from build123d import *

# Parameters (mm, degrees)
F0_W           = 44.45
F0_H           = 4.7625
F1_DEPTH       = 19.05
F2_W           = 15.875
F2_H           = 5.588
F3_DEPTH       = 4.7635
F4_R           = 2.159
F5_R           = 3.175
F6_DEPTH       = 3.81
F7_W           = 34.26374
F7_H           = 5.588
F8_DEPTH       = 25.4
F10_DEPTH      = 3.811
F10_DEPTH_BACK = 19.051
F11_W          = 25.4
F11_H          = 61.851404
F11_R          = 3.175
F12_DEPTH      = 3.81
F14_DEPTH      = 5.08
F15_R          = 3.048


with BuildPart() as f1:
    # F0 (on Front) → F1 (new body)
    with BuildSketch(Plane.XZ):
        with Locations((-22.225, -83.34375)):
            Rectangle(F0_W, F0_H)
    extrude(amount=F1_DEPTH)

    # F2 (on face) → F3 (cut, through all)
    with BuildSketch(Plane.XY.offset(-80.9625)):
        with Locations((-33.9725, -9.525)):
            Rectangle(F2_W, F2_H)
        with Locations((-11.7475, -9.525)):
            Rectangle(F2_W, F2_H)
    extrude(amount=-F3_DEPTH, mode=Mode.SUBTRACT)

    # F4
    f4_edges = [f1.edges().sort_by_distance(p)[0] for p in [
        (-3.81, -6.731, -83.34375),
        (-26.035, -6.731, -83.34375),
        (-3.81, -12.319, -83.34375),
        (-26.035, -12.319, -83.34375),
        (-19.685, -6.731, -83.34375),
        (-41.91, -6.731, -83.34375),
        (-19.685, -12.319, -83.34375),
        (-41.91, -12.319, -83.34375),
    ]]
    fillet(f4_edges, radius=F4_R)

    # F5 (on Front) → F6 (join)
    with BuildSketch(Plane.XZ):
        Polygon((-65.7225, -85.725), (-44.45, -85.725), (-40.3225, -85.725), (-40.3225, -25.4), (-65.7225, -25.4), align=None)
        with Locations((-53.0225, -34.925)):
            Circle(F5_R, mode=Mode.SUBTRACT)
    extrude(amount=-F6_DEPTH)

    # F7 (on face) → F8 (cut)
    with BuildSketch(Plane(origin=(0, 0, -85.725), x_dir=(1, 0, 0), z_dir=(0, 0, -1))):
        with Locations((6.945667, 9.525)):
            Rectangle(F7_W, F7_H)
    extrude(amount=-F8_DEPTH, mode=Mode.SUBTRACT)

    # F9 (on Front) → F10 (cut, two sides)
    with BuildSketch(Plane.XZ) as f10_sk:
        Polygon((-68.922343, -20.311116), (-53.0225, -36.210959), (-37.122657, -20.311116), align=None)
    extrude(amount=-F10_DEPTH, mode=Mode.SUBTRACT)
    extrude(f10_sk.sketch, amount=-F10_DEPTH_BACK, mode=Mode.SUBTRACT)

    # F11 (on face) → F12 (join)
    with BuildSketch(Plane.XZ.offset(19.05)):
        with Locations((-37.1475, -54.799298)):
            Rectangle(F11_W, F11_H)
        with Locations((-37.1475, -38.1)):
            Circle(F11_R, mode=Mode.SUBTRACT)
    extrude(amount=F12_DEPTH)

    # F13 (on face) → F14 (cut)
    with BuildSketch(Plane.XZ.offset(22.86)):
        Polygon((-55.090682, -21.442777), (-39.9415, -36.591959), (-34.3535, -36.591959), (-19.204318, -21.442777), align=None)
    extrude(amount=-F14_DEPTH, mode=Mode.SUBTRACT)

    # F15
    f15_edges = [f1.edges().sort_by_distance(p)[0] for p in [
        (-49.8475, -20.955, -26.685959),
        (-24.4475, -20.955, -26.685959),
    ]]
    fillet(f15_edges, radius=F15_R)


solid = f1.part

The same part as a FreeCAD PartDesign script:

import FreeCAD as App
import Part
import Sketcher
Q = App.Units.Quantity


def edges_at(feature, points):
    """Names of the edges that pass closest to the given points."""
    edges = feature.Shape.Edges
    near = lambda p: min(range(len(edges)), key=lambda i: edges[i].distToShape(Part.Vertex(*p))[0])
    return sorted({f"Edge{near(p) + 1}" for p in points})


def add_polygon(sketch, points):
    """Adds a closed chain of lines whose ends are joined by coincident constraints."""
    first, n = sketch.GeometryCount, len(points)
    for a, b in zip(points, points[1:] + points[:1]):
        sketch.addGeometry(Part.LineSegment(App.Vector(*a, 0), App.Vector(*b, 0)), False)
    for i in range(n):
        sketch.addConstraint(Sketcher.Constraint("Coincident", first + i, 2, first + (i + 1) % n, 1))

doc = App.newDocument("Part")
params = doc.addObject("Spreadsheet::Sheet", "Params")
for row, (alias, value) in enumerate([
    ("sketch1_width", "1.75 in"),
    ("sketch1_height", "0.1875 in"),
    ("pad1_length", "0.75 in"),
    ("sketch2_height", "0.22 in"),
    ("sketch2_width", "0.625 in"),
    ("fillet_radius", "0.085 in"),
    ("sketch3_diameter", "0.25 in"),
    ("sketch3_width", "1 in"),
    ("sketch3_height", "2.375 in"),
    ("pad2_length", "0.15 in"),
    ("sketch4_height", "0.22 in"),
    ("pocket2_length", "1 in"),
    ("pocket3_length", "3.811 mm"),
    ("pocket4_length", "19.051 mm"),
    ("sketch6_diameter", "0.25 in"),
    ("sketch6_width", "1 in"),
    ("pad3_length", "0.15 in"),
    ("sketch7_width", "0.22 in"),
    ("pocket5_length", "0.2 in"),
    ("fillet2_radius", "0.12 in"),
], start=1):
    params.set(f"A{row}", alias)
    params.set(f"B{row}", "=" + value)
    params.setAlias(f"B{row}", alias)

body = doc.addObject("PartDesign::Body", "Body")

sketch1 = body.newObject("Sketcher::SketchObject", "Sketch")
sketch1.AttachmentSupport = (doc.getObject("XZ_Plane"), [""])
sketch1.MapMode = "FlatFace"
add_polygon(sketch1, [(-44.45, -80.9625), (-44.45, -85.725), (0, -85.725), (0, -80.9625)])
sketch1.addConstraint([
    Sketcher.Constraint("Vertical", 0),
    Sketcher.Constraint("Horizontal", 1),
    Sketcher.Constraint("Vertical", 2),
    Sketcher.Constraint("Horizontal", 3),
    Sketcher.Constraint("PointOnObject", 1, 2, -2),
    Sketcher.Constraint("DistanceX", 1, 1, 1, 2, Q("1.75 in")),
    Sketcher.Constraint("DistanceY", 0, 2, 0, 1, Q("0.1875 in")),
    Sketcher.Constraint("DistanceY", 0, 2, -1, 1, Q("3.375 in")),
])
sketch1.setExpression("Constraints[9]", "Params.sketch1_width")
sketch1.setExpression("Constraints[10]", "Params.sketch1_height")
pad1 = body.newObject("PartDesign::Pad", "Pad")
pad1.Profile = sketch1
pad1.setExpression("Length", "Params.pad1_length")

sketch2 = body.newObject("Sketcher::SketchObject", "Sketch001")
sketch2.AttachmentSupport = (doc.getObject("XY_Plane"), [""])
sketch2.MapMode = "FlatFace"
sketch2.AttachmentOffset = App.Placement(App.Vector(0, 0, -3.1875 * 25.4), App.Rotation())
add_polygon(sketch2, [(-41.91, -6.731), (-41.91, -12.319), (-26.035, -12.319), (-26.035, -6.731)])
add_polygon(sketch2, [(-19.685, -6.731), (-19.685, -12.319), (-3.81, -12.319), (-3.81, -6.731)])
sketch2.addConstraint([
    Sketcher.Constraint("Vertical", 0),
    Sketcher.Constraint("Horizontal", 1),
    Sketcher.Constraint("Vertical", 2),
    Sketcher.Constraint("Horizontal", 3),
    Sketcher.Constraint("Vertical", 4),
    Sketcher.Constraint("Horizontal", 5),
    Sketcher.Constraint("Vertical", 6),
    Sketcher.Constraint("Horizontal", 7),
    Sketcher.Constraint("Horizontal", 1, 2, 4, 2),
    Sketcher.Constraint("Horizontal", 3, 2, 6, 2),
    Sketcher.Constraint("Equal", 3, 5),
    Sketcher.Constraint("DistanceY", 0, 2, 0, 1, Q("0.22 in")),
    Sketcher.Constraint("DistanceX", 0, 2, 5, 2, Q("1.5 in")),
    Sketcher.Constraint("DistanceX", 1, 1, 1, 2, Q("0.625 in")),
    Sketcher.Constraint("DistanceX", 0, 2, -1, 1, Q("1.65 in")),
    Sketcher.Constraint("DistanceY", 0, 2, -1, 1, Q("0.485 in")),
])
sketch2.setExpression("Constraints[19]", "Params.sketch2_height")
sketch2.setExpression("Constraints[21]", "Params.sketch2_width")
pocket1 = body.newObject("PartDesign::Pocket", "Pocket")
pocket1.Profile = sketch2
pocket1.Type = "ThroughAll"
doc.recompute()

fillet = body.newObject("PartDesign::Fillet", "Fillet")
fillet.Base = (pocket1, edges_at(pocket1, [
    (-3.81, -6.731, -83.344),
    (-26.035, -6.731, -83.344),
    (-3.81, -12.319, -83.344),
    (-26.035, -12.319, -83.344),
    (-19.685, -6.731, -83.344),
    (-41.91, -6.731, -83.344),
    (-19.685, -12.319, -83.344),
    (-41.91, -12.319, -83.344),
]))
fillet.setExpression("Radius", "Params.fillet_radius")

sketch3 = body.newObject("Sketcher::SketchObject", "Sketch002")
sketch3.AttachmentSupport = (doc.getObject("XZ_Plane"), [""])
sketch3.MapMode = "FlatFace"
add_polygon(sketch3, [(-65.7225, -85.725), (-40.3225, -85.725), (-40.3225, -25.4), (-65.7225, -25.4)])
sketch3.addGeometry(Part.Circle(App.Vector(-53.0225, -34.925, 0), App.Vector(0, 0, 1), 3.175), False)
sketch3.addConstraint([
    Sketcher.Constraint("Horizontal", 0),
    Sketcher.Constraint("Vertical", 1),
    Sketcher.Constraint("Horizontal", 2),
    Sketcher.Constraint("Vertical", 3),
    Sketcher.Constraint("Diameter", 4, Q("0.25 in")),
    Sketcher.Constraint("DistanceX", 0, 1, 0, 2, Q("1 in")),
    Sketcher.Constraint("DistanceY", 1, 2, -1, 1, Q("1 in")),
    Sketcher.Constraint("DistanceY", 0, 2, 4, 3, Q("2 in")),
    Sketcher.Constraint("DistanceX", 4, 3, 0, 2, Q("0.5 in")),
    Sketcher.Constraint("DistanceY", 1, 1, 1, 2, Q("2.375 in")),
    Sketcher.Constraint("DistanceX", 4, 3, -1, 1, Q("2.0875 in")),
])
sketch3.setExpression("Constraints[8]", "Params.sketch3_diameter")
sketch3.setExpression("Constraints[9]", "Params.sketch3_width")
sketch3.setExpression("Constraints[13]", "Params.sketch3_height")
pad2 = body.newObject("PartDesign::Pad", "Pad001")
pad2.Profile = sketch3
pad2.setExpression("Length", "Params.pad2_length")
pad2.Reversed = True

sketch4 = body.newObject("Sketcher::SketchObject", "Sketch003")
sketch4.AttachmentSupport = (doc.getObject("XY_Plane"), [""])
sketch4.MapMode = "FlatFace"
sketch4.AttachmentOffset = App.Placement(App.Vector(0, 0, -3.375 * 25.4), App.Rotation())
add_polygon(sketch4, [(-10.186203, -12.319), (-10.186203, -6.731), (24.077537, -6.731), (24.077537, -12.319)])
sketch4.addConstraint([
    Sketcher.Constraint("Vertical", 0),
    Sketcher.Constraint("Horizontal", 1),
    Sketcher.Constraint("Vertical", 2),
    Sketcher.Constraint("Horizontal", 3),
    Sketcher.Constraint("DistanceY", 0, 1, 0, 2, Q("0.22 in")),
    Sketcher.Constraint("DistanceY", 0, 2, -1, 1, Q("0.265 in")),
    Sketcher.Constraint("DistanceX", 1, 1, 1, 2, Q("34.26374 mm")),
    Sketcher.Constraint("DistanceX", 0, 2, -1, 1, Q("10.186203 mm")),
])
sketch4.setExpression("Constraints[8]", "Params.sketch4_height")
pocket2 = body.newObject("PartDesign::Pocket", "Pocket001")
pocket2.Profile = sketch4
pocket2.setExpression("Length", "Params.pocket2_length")
pocket2.Reversed = True

sketch5 = body.newObject("Sketcher::SketchObject", "Sketch004")
sketch5.AttachmentSupport = (doc.getObject("XZ_Plane"), [""])
sketch5.MapMode = "FlatFace"
add_polygon(sketch5, [(-68.922343, -20.311116), (-53.0225, -36.210959), (-37.122657, -20.311116)])
sketch5.addConstraint([
    Sketcher.Constraint("Horizontal", 2),
    Sketcher.Constraint("Perpendicular", 0, 1),
    Sketcher.Constraint("Equal", 0, 1),
    Sketcher.Constraint("DistanceX", 0, 2, -1, 1, Q("2.0875 in")),
    Sketcher.Constraint("DistanceX", 2, 2, 2, 1, Q("31.799686 mm")),
    Sketcher.Constraint("DistanceY", 0, 2, -1, 1, Q("36.210959 mm")),
])
pocket3 = body.newObject("PartDesign::Pocket", "Pocket002")
pocket3.Profile = sketch5
pocket3.setExpression("Length", "Params.pocket3_length")
pocket4 = body.newObject("PartDesign::Pocket", "Pocket003")
pocket4.Profile = sketch5
pocket4.setExpression("Length", "Params.pocket4_length")

sketch6 = body.newObject("Sketcher::SketchObject", "Sketch005")
sketch6.AttachmentSupport = (doc.getObject("XZ_Plane"), [""])
sketch6.MapMode = "FlatFace"
sketch6.AttachmentOffset = App.Placement(App.Vector(0, 0, 0.75 * 25.4), App.Rotation())
add_polygon(sketch6, [(-49.8475, -23.873596), (-49.8475, -85.725), (-24.4475, -85.725), (-24.4475, -23.873596)])
sketch6.addGeometry(Part.Circle(App.Vector(-37.1475, -38.1, 0), App.Vector(0, 0, 1), 3.175), False)
sketch6.addConstraint([
    Sketcher.Constraint("Vertical", 0),
    Sketcher.Constraint("Horizontal", 1),
    Sketcher.Constraint("Vertical", 2),
    Sketcher.Constraint("Horizontal", 3),
    Sketcher.Constraint("Diameter", 4, Q("0.25 in")),
    Sketcher.Constraint("DistanceX", 1, 1, 1, 2, Q("1 in")),
    Sketcher.Constraint("DistanceY", 4, 3, -1, 1, Q("1.5 in")),
    Sketcher.Constraint("DistanceX", 0, 2, 4, 3, Q("0.5 in")),
    Sketcher.Constraint("DistanceY", 0, 2, -1, 1, Q("3.375 in")),
    Sketcher.Constraint("DistanceX", 4, 3, -1, 1, Q("1.4625 in")),
    Sketcher.Constraint("DistanceY", 0, 2, 0, 1, Q("61.851404 mm")),
])
sketch6.setExpression("Constraints[8]", "Params.sketch6_diameter")
sketch6.setExpression("Constraints[9]", "Params.sketch6_width")
pad3 = body.newObject("PartDesign::Pad", "Pad002")
pad3.Profile = sketch6
pad3.setExpression("Length", "Params.pad3_length")

sketch7 = body.newObject("Sketcher::SketchObject", "Sketch006")
sketch7.AttachmentSupport = (doc.getObject("XZ_Plane"), [""])
sketch7.MapMode = "FlatFace"
sketch7.AttachmentOffset = App.Placement(App.Vector(0, 0, 0.9 * 25.4), App.Rotation())
add_polygon(sketch7, [(-55.090682, -21.442777), (-39.9415, -36.591959), (-34.3535, -36.591959), (-19.204318, -21.442777)])
sketch7.addConstraint([
    Sketcher.Constraint("Horizontal", 1),
    Sketcher.Constraint("Horizontal", 3),
    Sketcher.Constraint("Perpendicular", 0, 2),
    Sketcher.Constraint("Equal", 0, 2),
    Sketcher.Constraint("DistanceX", 1, 1, 1, 2, Q("0.22 in")),
    Sketcher.Constraint("DistanceX", 0, 2, -1, 1, Q("1.5725 in")),
    Sketcher.Constraint("Distance", 0, Q("21.424179 mm")),
    Sketcher.Constraint("DistanceY", 0, 2, -1, 1, Q("36.591959 mm")),
])
sketch7.setExpression("Constraints[8]", "Params.sketch7_width")
pocket5 = body.newObject("PartDesign::Pocket", "Pocket004")
pocket5.Profile = sketch7
pocket5.setExpression("Length", "Params.pocket5_length")
doc.recompute()

fillet2 = body.newObject("PartDesign::Fillet", "Fillet001")
fillet2.Base = (pocket5, edges_at(pocket5, [(-49.847, -20.955, -26.686), (-24.448, -20.955, -26.686)]))
fillet2.setExpression("Radius", "Params.fillet2_radius")

doc.recompute()
